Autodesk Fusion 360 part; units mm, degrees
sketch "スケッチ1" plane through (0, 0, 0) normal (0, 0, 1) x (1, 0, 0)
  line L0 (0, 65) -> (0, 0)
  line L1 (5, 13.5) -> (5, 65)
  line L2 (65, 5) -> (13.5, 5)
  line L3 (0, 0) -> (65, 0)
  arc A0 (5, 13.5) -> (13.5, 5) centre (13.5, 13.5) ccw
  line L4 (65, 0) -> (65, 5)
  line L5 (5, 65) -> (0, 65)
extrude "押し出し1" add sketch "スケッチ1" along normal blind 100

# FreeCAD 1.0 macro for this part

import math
import FreeCAD as App
import Part
import Sketcher

V = App.Vector

doc = App.newDocument("Part")
body = doc.addObject("PartDesign::Body", "Body")

# Sketch on XY plane
sketch1 = doc.addObject("Sketcher::SketchObject", "Sketch")
body.addObject(sketch1)
sketch1.AttachmentSupport = (doc.XY_Plane, [""])
sketch1.MapMode = "FlatFace"
sketch1.addGeometry(Part.LineSegment(V(5, 65, 0), V(0, 65, 0)), False)
sketch1.addGeometry(Part.LineSegment(V(0, 65, 0), V(0, 0, 0)), False)
sketch1.addGeometry(Part.LineSegment(V(0, 0, 0), V(65, 0, 0)), False)
sketch1.addGeometry(Part.LineSegment(V(65, 0, 0), V(65, 5, 0)), False)
sketch1.addGeometry(Part.LineSegment(V(65, 5, 0), V(14, 5, 0)), False)
sketch1.addGeometry(Part.ArcOfCircle(Part.Circle(V(14, 14, 0), V(0, 0, 1), 8), math.radians(180), math.radians(270)), False)
sketch1.addGeometry(Part.LineSegment(V(5, 14, 0), V(5, 65, 0)), False)
sketch1.addConstraint(Sketcher.Constraint("Coincident", 0, 2, 1, 1))
sketch1.addConstraint(Sketcher.Constraint("Coincident", 1, 2, 2, 1))
sketch1.addConstraint(Sketcher.Constraint("Coincident", 2, 2, 3, 1))
sketch1.addConstraint(Sketcher.Constraint("Coincident", 3, 2, 4, 1))
sketch1.addConstraint(Sketcher.Constraint("Tangent", 4, 2, 5, 2))
sketch1.addConstraint(Sketcher.Constraint("Tangent", 5, 1, 6, 1))
sketch1.addConstraint(Sketcher.Constraint("Coincident", 6, 2, 0, 1))
sketch1.addConstraint(Sketcher.Constraint("Horizontal", 0))
sketch1.addConstraint(Sketcher.Constraint("Vertical", 1))
sketch1.addConstraint(Sketcher.Constraint("Horizontal", 2))
sketch1.addConstraint(Sketcher.Constraint("Vertical", 3))
sketch1.addConstraint(Sketcher.Constraint("Horizontal", 4))
sketch1.addConstraint(Sketcher.Constraint("Vertical", 6))
sketch1.addConstraint(Sketcher.Constraint("Coincident", 1, 2, -1, 1))
sketch1.addConstraint(Sketcher.Constraint("Equal", 2, 1))
sketch1.addConstraint(Sketcher.Constraint("Equal", 0, 3))
sketch1.addConstraint(Sketcher.Constraint("Radius", 5, 8.5))
sketch1.addConstraint(Sketcher.Constraint("DistanceX", 0, 2, 0, 1, 5.0))
sketch1.addConstraint(Sketcher.Constraint("DistanceX", 2, 1, 2, 2, 65.0))
pad1 = doc.addObject("PartDesign::Pad", "Pad")
body.addObject(pad1)
pad1.Profile = sketch1
pad1.Length = 100

doc.recompute()
